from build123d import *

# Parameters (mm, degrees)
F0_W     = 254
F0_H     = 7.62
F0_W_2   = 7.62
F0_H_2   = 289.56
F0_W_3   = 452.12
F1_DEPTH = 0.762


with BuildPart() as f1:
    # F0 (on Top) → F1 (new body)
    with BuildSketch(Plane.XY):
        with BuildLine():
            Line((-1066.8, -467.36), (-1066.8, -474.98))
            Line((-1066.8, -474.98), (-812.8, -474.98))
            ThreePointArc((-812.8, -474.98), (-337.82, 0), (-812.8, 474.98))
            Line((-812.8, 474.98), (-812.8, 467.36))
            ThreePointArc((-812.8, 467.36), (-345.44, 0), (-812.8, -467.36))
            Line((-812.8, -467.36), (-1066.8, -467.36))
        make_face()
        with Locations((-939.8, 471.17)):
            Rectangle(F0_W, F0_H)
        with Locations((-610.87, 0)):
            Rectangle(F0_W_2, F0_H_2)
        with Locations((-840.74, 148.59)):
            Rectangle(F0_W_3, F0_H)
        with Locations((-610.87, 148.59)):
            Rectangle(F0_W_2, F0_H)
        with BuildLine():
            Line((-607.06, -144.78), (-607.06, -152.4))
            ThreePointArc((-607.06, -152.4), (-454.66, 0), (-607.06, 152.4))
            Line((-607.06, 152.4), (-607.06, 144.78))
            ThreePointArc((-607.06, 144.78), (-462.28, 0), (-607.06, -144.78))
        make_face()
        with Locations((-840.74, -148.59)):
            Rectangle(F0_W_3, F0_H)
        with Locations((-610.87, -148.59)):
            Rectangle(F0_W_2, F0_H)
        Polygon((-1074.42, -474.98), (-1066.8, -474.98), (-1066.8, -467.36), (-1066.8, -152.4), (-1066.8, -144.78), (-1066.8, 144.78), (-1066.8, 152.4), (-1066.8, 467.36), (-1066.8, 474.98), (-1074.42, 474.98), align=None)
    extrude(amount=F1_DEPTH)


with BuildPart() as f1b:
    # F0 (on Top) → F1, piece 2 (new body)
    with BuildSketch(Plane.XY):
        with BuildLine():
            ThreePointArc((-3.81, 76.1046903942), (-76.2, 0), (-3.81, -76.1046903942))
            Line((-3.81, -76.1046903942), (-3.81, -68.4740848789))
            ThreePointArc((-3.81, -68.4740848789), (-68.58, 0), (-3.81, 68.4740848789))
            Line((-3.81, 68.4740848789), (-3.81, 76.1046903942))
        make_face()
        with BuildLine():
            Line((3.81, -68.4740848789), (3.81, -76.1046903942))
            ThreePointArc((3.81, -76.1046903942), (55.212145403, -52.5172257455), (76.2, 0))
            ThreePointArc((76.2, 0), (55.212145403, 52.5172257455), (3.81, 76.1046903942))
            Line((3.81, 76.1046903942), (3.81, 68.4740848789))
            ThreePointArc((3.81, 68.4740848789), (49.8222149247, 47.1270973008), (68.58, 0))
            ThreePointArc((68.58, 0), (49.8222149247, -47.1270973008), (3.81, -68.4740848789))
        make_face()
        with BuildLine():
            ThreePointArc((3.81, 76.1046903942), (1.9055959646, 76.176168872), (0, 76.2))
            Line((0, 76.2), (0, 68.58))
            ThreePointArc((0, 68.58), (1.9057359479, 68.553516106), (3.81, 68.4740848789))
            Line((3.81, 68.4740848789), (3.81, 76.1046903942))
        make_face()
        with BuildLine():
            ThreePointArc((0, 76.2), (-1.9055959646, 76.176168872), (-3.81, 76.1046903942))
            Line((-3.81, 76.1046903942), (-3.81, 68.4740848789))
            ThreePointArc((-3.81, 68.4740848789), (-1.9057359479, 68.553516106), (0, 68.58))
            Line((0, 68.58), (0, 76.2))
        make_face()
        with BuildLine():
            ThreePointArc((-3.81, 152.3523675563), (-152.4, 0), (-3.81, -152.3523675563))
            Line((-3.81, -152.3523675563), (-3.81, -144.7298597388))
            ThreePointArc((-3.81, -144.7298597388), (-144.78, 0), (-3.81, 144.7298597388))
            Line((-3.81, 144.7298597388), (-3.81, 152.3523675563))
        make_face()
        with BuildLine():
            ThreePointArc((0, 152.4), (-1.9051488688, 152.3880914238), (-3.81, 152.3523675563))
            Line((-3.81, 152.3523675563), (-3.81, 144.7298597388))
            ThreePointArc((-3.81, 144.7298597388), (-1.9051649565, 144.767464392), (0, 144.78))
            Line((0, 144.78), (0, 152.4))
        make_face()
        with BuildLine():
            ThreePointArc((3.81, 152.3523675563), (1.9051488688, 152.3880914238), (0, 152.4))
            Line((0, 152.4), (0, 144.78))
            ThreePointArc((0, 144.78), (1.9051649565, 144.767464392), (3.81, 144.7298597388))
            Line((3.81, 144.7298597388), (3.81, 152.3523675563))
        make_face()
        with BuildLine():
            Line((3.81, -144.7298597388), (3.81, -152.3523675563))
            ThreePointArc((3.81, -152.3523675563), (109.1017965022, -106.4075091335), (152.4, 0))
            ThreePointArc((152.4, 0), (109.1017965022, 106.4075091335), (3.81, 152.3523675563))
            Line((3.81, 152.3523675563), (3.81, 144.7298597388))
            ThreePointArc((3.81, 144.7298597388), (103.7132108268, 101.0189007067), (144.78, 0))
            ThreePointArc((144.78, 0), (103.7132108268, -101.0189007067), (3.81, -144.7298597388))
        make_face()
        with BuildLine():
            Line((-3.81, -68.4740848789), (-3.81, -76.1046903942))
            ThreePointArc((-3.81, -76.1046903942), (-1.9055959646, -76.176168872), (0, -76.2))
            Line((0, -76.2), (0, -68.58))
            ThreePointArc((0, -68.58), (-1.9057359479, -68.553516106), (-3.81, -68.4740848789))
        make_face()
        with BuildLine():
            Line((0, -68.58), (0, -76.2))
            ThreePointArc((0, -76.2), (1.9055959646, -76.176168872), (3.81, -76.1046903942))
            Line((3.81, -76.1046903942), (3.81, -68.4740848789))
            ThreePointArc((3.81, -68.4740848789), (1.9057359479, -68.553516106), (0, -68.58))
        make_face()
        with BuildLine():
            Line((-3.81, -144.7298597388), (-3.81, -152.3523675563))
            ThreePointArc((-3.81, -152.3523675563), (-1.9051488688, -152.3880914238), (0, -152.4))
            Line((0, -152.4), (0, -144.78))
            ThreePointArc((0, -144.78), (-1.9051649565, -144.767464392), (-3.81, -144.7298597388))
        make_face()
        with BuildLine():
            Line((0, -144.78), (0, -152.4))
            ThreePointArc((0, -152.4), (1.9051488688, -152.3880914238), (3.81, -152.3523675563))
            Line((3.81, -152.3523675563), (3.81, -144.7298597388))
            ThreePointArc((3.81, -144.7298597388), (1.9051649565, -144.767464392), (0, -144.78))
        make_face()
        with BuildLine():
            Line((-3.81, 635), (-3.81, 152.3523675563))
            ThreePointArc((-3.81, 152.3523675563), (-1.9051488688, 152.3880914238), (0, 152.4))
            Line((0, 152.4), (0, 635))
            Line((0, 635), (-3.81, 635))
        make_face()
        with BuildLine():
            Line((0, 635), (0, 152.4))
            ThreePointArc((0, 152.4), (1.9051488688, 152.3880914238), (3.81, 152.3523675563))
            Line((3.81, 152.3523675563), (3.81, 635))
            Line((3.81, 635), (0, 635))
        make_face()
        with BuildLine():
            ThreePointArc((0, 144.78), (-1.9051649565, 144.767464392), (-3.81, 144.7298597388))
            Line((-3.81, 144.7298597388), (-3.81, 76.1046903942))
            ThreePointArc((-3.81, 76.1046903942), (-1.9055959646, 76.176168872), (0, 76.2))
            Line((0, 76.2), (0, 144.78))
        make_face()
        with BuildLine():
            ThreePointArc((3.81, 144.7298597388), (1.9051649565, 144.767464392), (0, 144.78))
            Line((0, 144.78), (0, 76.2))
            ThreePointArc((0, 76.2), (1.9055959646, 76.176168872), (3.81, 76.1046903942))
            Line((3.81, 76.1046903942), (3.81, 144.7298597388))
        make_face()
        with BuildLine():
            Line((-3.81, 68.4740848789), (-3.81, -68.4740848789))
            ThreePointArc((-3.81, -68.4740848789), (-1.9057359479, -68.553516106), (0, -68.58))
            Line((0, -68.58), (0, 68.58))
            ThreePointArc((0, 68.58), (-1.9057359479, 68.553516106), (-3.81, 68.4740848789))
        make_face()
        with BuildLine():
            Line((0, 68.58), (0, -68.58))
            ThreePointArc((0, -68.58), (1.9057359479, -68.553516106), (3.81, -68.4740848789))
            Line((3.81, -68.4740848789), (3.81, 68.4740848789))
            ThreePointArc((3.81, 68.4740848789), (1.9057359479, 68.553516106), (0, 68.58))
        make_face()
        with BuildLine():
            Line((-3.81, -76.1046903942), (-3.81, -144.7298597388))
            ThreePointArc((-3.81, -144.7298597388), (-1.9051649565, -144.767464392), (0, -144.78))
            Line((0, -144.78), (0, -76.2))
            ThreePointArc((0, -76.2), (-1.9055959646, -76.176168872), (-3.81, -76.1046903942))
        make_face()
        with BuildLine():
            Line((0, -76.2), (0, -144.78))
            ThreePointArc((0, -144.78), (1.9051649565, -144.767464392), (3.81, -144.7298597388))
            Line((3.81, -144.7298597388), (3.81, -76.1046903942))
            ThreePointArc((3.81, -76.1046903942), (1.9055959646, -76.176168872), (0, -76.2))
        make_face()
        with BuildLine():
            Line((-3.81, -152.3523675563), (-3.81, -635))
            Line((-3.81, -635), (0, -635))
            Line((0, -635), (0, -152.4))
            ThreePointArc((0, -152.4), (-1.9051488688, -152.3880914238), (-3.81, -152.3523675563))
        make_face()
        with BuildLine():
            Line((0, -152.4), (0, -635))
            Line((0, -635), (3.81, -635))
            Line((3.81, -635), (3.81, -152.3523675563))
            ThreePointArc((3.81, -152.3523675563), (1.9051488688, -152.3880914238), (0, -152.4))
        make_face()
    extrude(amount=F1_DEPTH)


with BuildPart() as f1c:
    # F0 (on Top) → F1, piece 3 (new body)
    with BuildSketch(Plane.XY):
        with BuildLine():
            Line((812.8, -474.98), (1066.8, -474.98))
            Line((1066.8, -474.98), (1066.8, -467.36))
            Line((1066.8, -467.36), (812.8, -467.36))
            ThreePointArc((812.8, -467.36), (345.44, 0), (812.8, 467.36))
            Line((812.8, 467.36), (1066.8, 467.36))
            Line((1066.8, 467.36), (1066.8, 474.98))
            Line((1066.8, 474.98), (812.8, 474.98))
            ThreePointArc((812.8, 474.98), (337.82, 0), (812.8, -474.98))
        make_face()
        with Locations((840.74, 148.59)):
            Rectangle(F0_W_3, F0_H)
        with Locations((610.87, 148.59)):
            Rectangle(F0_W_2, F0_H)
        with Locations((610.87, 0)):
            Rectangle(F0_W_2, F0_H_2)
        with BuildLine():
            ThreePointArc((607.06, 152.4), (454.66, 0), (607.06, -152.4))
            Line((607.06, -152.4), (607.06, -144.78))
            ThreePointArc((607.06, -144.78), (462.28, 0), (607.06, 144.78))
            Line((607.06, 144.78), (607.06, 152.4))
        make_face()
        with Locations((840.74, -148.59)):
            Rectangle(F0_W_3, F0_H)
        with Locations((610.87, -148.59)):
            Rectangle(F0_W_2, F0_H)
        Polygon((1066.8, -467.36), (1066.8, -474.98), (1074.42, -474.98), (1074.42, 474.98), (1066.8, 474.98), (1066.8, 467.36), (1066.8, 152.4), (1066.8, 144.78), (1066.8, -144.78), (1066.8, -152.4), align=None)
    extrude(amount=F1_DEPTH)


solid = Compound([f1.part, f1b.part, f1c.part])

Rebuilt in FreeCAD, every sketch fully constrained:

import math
import FreeCAD as App
import Part
import Sketcher

V = App.Vector
Q = App.Units.Quantity

doc = App.newDocument("Part")
params = doc.addObject("Spreadsheet::Sheet", "Params")
for row, (alias, value) in enumerate([
    ("sketch1_radius", "6 in"),
    ("sketch1_radius2", "18.7 in"),
    ("sketch1_radius3", "18.4 in"),
    ("sketch1_radius4", "5.7 in"),
    ("sketch1_width", "10 in"),
    ("pad1_length", "0.03 in"),
    ("sketch2_radius", "6 in"),
    ("sketch2_radius2", "3 in"),
    ("sketch2_radius3", "5.7 in"),
    ("sketch2_radius4", "2.7 in"),
    ("sketch2_width", "0.3 in"),
    ("pad2_length", "0.03 in"),
    ("sketch3_radius", "6 in"),
    ("sketch3_radius2", "18.7 in"),
    ("sketch3_radius3", "18.4 in"),
    ("sketch3_radius4", "5.7 in"),
    ("sketch3_width", "10 in"),
    ("pad3_length", "0.03 in"),
], start=1):
    params.set(f"A{row}", alias)
    params.set(f"B{row}", "=" + value)
    params.setAlias(f"B{row}", alias)

body = doc.addObject("PartDesign::Body", "Body")

# Sketch on XY plane
sketch1 = body.newObject("Sketcher::SketchObject", "Sketch")
sketch1.AttachmentSupport = (doc.getObject("XY_Plane"), [""])
sketch1.MapMode = "FlatFace"
sketch1.addGeometry(Part.ArcOfCircle(Part.Circle(V(-813, 0, 0), V(0, 0, 1), 475), math.radians(-90), math.radians(90)), False)
sketch1.addGeometry(Part.LineSegment(V(-813, 475, 0), V(-1074, 475, 0)), False)
sketch1.addGeometry(Part.LineSegment(V(-1074, 475, 0), V(-1074, -475, 0)), False)
sketch1.addGeometry(Part.LineSegment(V(-1074, -475, 0), V(-813, -475, 0)), False)
sketch1.addGeometry(Part.LineSegment(V(-1067, 467, 0), V(-813, 467, 0)), False)
sketch1.addGeometry(Part.ArcOfCircle(Part.Circle(V(-813, 0, 0), V(0, 0, 1), 467), math.radians(-90), math.radians(90)), False)
sketch1.addGeometry(Part.LineSegment(V(-813, -467, 0), V(-1067, -467, 0)), False)
sketch1.addGeometry(Part.LineSegment(V(-1067, -467, 0), V(-1067, -152, 0)), False)
sketch1.addGeometry(Part.LineSegment(V(-1067, -152, 0), V(-607, -152, 0)), False)
sketch1.addGeometry(Part.ArcOfCircle(Part.Circle(V(-607, 0, 0), V(0, 0, 1), 152), math.radians(-90), math.radians(90)), False)
sketch1.addGeometry(Part.LineSegment(V(-607, 152, 0), V(-1067, 152, 0)), False)
sketch1.addGeometry(Part.LineSegment(V(-1067, 152, 0), V(-1067, 467, 0)), False)
sketch1.addGeometry(Part.LineSegment(V(-1067, -145, 0), V(-1067, 145, 0)), False)
sketch1.addGeometry(Part.LineSegment(V(-1067, 145, 0), V(-615, 145, 0)), False)
sketch1.addGeometry(Part.LineSegment(V(-615, 145, 0), V(-615, -145, 0)), False)
sketch1.addGeometry(Part.LineSegment(V(-615, -145, 0), V(-1067, -145, 0)), False)
sketch1.addGeometry(Part.LineSegment(V(-607, -145, 0), V(-607, 145, 0)), False)
sketch1.addGeometry(Part.ArcOfCircle(Part.Circle(V(-607, 0, 0), V(0, 0, 1), 145), math.radians(-90), math.radians(90)), False)
sketch1.addConstraint(Sketcher.Constraint("Tangent", 0, 2, 1, 1))
sketch1.addConstraint(Sketcher.Constraint("Coincident", 1, 2, 2, 1))
sketch1.addConstraint(Sketcher.Constraint("Coincident", 2, 2, 3, 1))
sketch1.addConstraint(Sketcher.Constraint("Tangent", 3, 2, 0, 1))
sketch1.addConstraint(Sketcher.Constraint("Tangent", 4, 2, 5, 2))
sketch1.addConstraint(Sketcher.Constraint("Tangent", 5, 1, 6, 1))
sketch1.addConstraint(Sketcher.Constraint("Coincident", 6, 2, 7, 1))
sketch1.addConstraint(Sketcher.Constraint("Coincident", 7, 2, 8, 1))
sketch1.addConstraint(Sketcher.Constraint("Tangent", 8, 2, 9, 1))
sketch1.addConstraint(Sketcher.Constraint("Tangent", 9, 2, 10, 1))
sketch1.addConstraint(Sketcher.Constraint("Coincident", 10, 2, 11, 1))
sketch1.addConstraint(Sketcher.Constraint("Coincident", 11, 2, 4, 1))
sketch1.addConstraint(Sketcher.Constraint("Coincident", 12, 2, 13, 1))
sketch1.addConstraint(Sketcher.Constraint("Coincident", 13, 2, 14, 1))
sketch1.addConstraint(Sketcher.Constraint("Coincident", 14, 2, 15, 1))
sketch1.addConstraint(Sketcher.Constraint("Coincident", 15, 2, 12, 1))
sketch1.addConstraint(Sketcher.Constraint("Coincident", 16, 1, 17, 1))
sketch1.addConstraint(Sketcher.Constraint("Coincident", 17, 2, 16, 2))
sketch1.addConstraint(Sketcher.Constraint("Horizontal", 1))
sketch1.addConstraint(Sketcher.Constraint("Vertical", 2))
sketch1.addConstraint(Sketcher.Constraint("Horizontal", 3))
sketch1.addConstraint(Sketcher.Constraint("Horizontal", 4))
sketch1.addConstraint(Sketcher.Constraint("Horizontal", 6))
sketch1.addConstraint(Sketcher.Constraint("Vertical", 7))
sketch1.addConstraint(Sketcher.Constraint("Horizontal", 8))
sketch1.addConstraint(Sketcher.Constraint("Horizontal", 10))
sketch1.addConstraint(Sketcher.Constraint("Vertical", 11))
sketch1.addConstraint(Sketcher.Constraint("Vertical", 12))
sketch1.addConstraint(Sketcher.Constraint("Horizontal", 13))
sketch1.addConstraint(Sketcher.Constraint("Vertical", 14))
sketch1.addConstraint(Sketcher.Constraint("Horizontal", 15))
sketch1.addConstraint(Sketcher.Constraint("Vertical", 16))
sketch1.addConstraint(Sketcher.Constraint("Coincident", 5, 3, 0, 3))
sketch1.addConstraint(Sketcher.Constraint("Coincident", 17, 3, 9, 3))
sketch1.addConstraint(Sketcher.Constraint("Symmetric", 7, 2, 10, 2, -1))
sketch1.addConstraint(Sketcher.Constraint("PointOnObject", 0, 3, -1))
sketch1.addConstraint(Sketcher.Constraint("Horizontal", 15, 2, 16, 1))
sketch1.addConstraint(Sketcher.Constraint("Horizontal", 13, 2, 17, 2))
sketch1.addConstraint(Sketcher.Constraint("Vertical", 11, 2, 12, 2))
sketch1.addConstraint(Sketcher.Constraint("Vertical", 9, 2, 16, 1))
sketch1.addConstraint(Sketcher.Constraint("Radius", 9, Q("6 in")))
sketch1.addConstraint(Sketcher.Constraint("Radius", 0, Q("18.7 in")))
sketch1.addConstraint(Sketcher.Constraint("Radius", 5, Q("18.4 in")))
sketch1.addConstraint(Sketcher.Constraint("Radius", 17, Q("5.7 in")))
sketch1.addConstraint(Sketcher.Constraint("DistanceX", 4, 1, 4, 2, Q("10 in")))
sketch1.addConstraint(Sketcher.Constraint("DistanceX", 1, 2, 1, 1, Q("10.3 in")))
sketch1.addConstraint(Sketcher.Constraint("DistanceX", 8, 1, 8, 2, Q("18.1 in")))
sketch1.addConstraint(Sketcher.Constraint("DistanceX", 13, 1, 13, 2, Q("17.8 in")))
sketch1.addConstraint(Sketcher.Constraint("DistanceX", 0, 3, -1, 1, Q("32 in")))
sketch1.setExpression("Constraints[40]", "Params.sketch1_radius")
sketch1.setExpression("Constraints[41]", "Params.sketch1_radius2")
sketch1.setExpression("Constraints[42]", "Params.sketch1_radius3")
sketch1.setExpression("Constraints[43]", "Params.sketch1_radius4")
sketch1.setExpression("Constraints[44]", "Params.sketch1_width")
pad1 = body.newObject("PartDesign::Pad", "Pad")
pad1.Profile = sketch1
pad1.setExpression("Length", "Params.pad1_length")
body2 = doc.addObject("PartDesign::Body", "Body001")

# Sketch on XY plane
sketch2 = body2.newObject("Sketcher::SketchObject", "Sketch001")
sketch2.AttachmentSupport = (doc.getObject("XY_Plane001"), [""])
sketch2.MapMode = "FlatFace"
sketch2.addGeometry(Part.ArcOfCircle(Part.Circle(V(0, 0, 0), V(0, 0, 1), 152), math.radians(91), math.radians(269)), False)
sketch2.addGeometry(Part.LineSegment(V(-4, -152, 0), V(-4, -635, 0)), False)
sketch2.addGeometry(Part.LineSegment(V(-4, -635, 0), V(4, -635, 0)), False)
sketch2.addGeometry(Part.LineSegment(V(4, -635, 0), V(4, -152, 0)), False)
sketch2.addGeometry(Part.ArcOfCircle(Part.Circle(V(0, 0, 0), V(0, 0, 1), 152), math.radians(-89), math.radians(89)), False)
sketch2.addGeometry(Part.LineSegment(V(4, 152, 0), V(4, 635, 0)), False)
sketch2.addGeometry(Part.LineSegment(V(4, 635, 0), V(-4, 635, 0)), False)
sketch2.addGeometry(Part.LineSegment(V(-4, 635, 0), V(-4, 152, 0)), False)
sketch2.addGeometry(Part.ArcOfCircle(Part.Circle(V(0, 0, 0), V(0, 0, 1), 76), math.radians(93), math.radians(267)), False)
sketch2.addGeometry(Part.LineSegment(V(-4, -76, 0), V(-4, -145, 0)), False)
sketch2.addGeometry(Part.ArcOfCircle(Part.Circle(V(0, 0, 0), V(0, 0, 1), 145), math.radians(92), math.radians(268)), False)
sketch2.addGeometry(Part.LineSegment(V(-4, 145, 0), V(-4, 76, 0)), False)
sketch2.addGeometry(Part.ArcOfCircle(Part.Circle(V(0, 0, 0), V(0, 0, 1), 76), math.radians(-87), math.radians(0)), False)
sketch2.addGeometry(Part.ArcOfCircle(Part.Circle(V(0, 0, 0), V(0, 0, 1), 76), math.radians(0), math.radians(87)), False)
sketch2.addGeometry(Part.LineSegment(V(4, 76, 0), V(4, 145, 0)), False)
sketch2.addGeometry(Part.ArcOfCircle(Part.Circle(V(0, 0, 0), V(0, 0, 1), 145), math.radians(0), math.radians(88)), False)
sketch2.addGeometry(Part.ArcOfCircle(Part.Circle(V(0, 0, 0), V(0, 0, 1), 145), math.radians(-88), math.radians(0)), False)
sketch2.addGeometry(Part.LineSegment(V(4, -145, 0), V(4, -76, 0)), False)
sketch2.addGeometry(Part.ArcOfCircle(Part.Circle(V(0, 0, 0), V(0, 0, 1), 69), math.radians(93), math.radians(267)), False)
sketch2.addGeometry(Part.LineSegment(V(-4, 68, 0), V(-4, -68, 0)), False)
sketch2.addGeometry(Part.ArcOfCircle(Part.Circle(V(0, 0, 0), V(0, 0, 1), 69), math.radians(-87), math.radians(87)), False)
sketch2.addGeometry(Part.LineSegment(V(4, -68, 0), V(4, 68, 0)), False)
sketch2.addConstraint(Sketcher.Constraint("Coincident", 0, 2, 1, 1))
sketch2.addConstraint(Sketcher.Constraint("Coincident", 1, 2, 2, 1))
sketch2.addConstraint(Sketcher.Constraint("Coincident", 2, 2, 3, 1))
sketch2.addConstraint(Sketcher.Constraint("Coincident", 3, 2, 4, 1))
sketch2.addConstraint(Sketcher.Constraint("Coincident", 4, 2, 5, 1))
sketch2.addConstraint(Sketcher.Constraint("Coincident", 5, 2, 6, 1))
sketch2.addConstraint(Sketcher.Constraint("Coincident", 6, 2, 7, 1))
sketch2.addConstraint(Sketcher.Constraint("Coincident", 7, 2, 0, 1))
sketch2.addConstraint(Sketcher.Constraint("Coincident", 8, 2, 9, 1))
sketch2.addConstraint(Sketcher.Constraint("Coincident", 9, 2, 10, 2))
sketch2.addConstraint(Sketcher.Constraint("Coincident", 10, 1, 11, 1))
sketch2.addConstraint(Sketcher.Constraint("Coincident", 11, 2, 8, 1))
sketch2.addConstraint(Sketcher.Constraint("Tangent", 12, 2, 13, 1))
sketch2.addConstraint(Sketcher.Constraint("Coincident", 13, 2, 14, 1))
sketch2.addConstraint(Sketcher.Constraint("Coincident", 14, 2, 15, 2))
sketch2.addConstraint(Sketcher.Constraint("Tangent", 15, 1, 16, 2))
sketch2.addConstraint(Sketcher.Constraint("Coincident", 16, 1, 17, 1))
sketch2.addConstraint(Sketcher.Constraint("Coincident", 17, 2, 12, 1))
sketch2.addConstraint(Sketcher.Constraint("Coincident", 18, 1, 19, 1))
sketch2.addConstraint(Sketcher.Constraint("Coincident", 19, 2, 18, 2))
sketch2.addConstraint(Sketcher.Constraint("Coincident", 20, 1, 21, 1))
sketch2.addConstraint(Sketcher.Constraint("Coincident", 21, 2, 20, 2))
sketch2.addConstraint(Sketcher.Constraint("Vertical", 1))
sketch2.addConstraint(Sketcher.Constraint("Horizontal", 2))
sketch2.addConstraint(Sketcher.Constraint("Vertical", 3))
sketch2.addConstraint(Sketcher.Constraint("Vertical", 5))
sketch2.addConstraint(Sketcher.Constraint("Horizontal", 6))
sketch2.addConstraint(Sketcher.Constraint("Vertical", 7))
sketch2.addConstraint(Sketcher.Constraint("Vertical", 9))
sketch2.addConstraint(Sketcher.Constraint("Vertical", 11))
sketch2.addConstraint(Sketcher.Constraint("Vertical", 14))
sketch2.addConstraint(Sketcher.Constraint("Vertical", 17))
sketch2.addConstraint(Sketcher.Constraint("Vertical", 19))
sketch2.addConstraint(Sketcher.Constraint("Vertical", 21))
sketch2.addConstraint(Sketcher.Constraint("Coincident", 0, 3, -1, 1))
sketch2.addConstraint(Sketcher.Constraint("Coincident", 4, 3, -1, 1))
sketch2.addConstraint(Sketcher.Constraint("Coincident", 8, 3, -1, 1))
sketch2.addConstraint(Sketcher.Constraint("Coincident", 10, 3, -1, 1))
sketch2.addConstraint(Sketcher.Constraint("Coincident", 12, 3, -1, 1))
sketch2.addConstraint(Sketcher.Constraint("Coincident", 15, 3, -1, 1))
sketch2.addConstraint(Sketcher.Constraint("Coincident", 18, 3, -1, 1))
sketch2.addConstraint(Sketcher.Constraint("Coincident", 20, 3, -1, 1))
sketch2.addConstraint(Sketcher.Constraint("Equal", 0, 4))
sketch2.addConstraint(Sketcher.Constraint("Equal", 8, 12))
sketch2.addConstraint(Sketcher.Constraint("Equal", 12, 13))
sketch2.addConstraint(Sketcher.Constraint("Equal", 10, 15))
sketch2.addConstraint(Sketcher.Constraint("Equal", 15, 16))
sketch2.addConstraint(Sketcher.Constraint("Equal", 18, 20))
sketch2.addConstraint(Sketcher.Constraint("Symmetric", 1, 2, 5, 2, -1, 1))
sketch2.addConstraint(Sketcher.Constraint("PointOnObject", 12, 2, -1))
sketch2.addConstraint(Sketcher.Constraint("PointOnObject", 15, 1, -1))
sketch2.addConstraint(Sketcher.Constraint("Horizontal", 0, 2, 3, 2))
sketch2.addConstraint(Sketcher.Constraint("Horizontal", 4, 2, 7, 2))
sketch2.addConstraint(Sketcher.Constraint("Horizontal", 11, 2, 13, 2))
sketch2.addConstraint(Sketcher.Constraint("Horizontal", 9, 2, 16, 1))
sketch2.addConstraint(Sketcher.Constraint("Horizontal", 19, 2, 20, 1))
sketch2.addConstraint(Sketcher.Constraint("Vertical", 7, 2, 8, 2))
sketch2.addConstraint(Sketcher.Constraint("Vertical", 9, 2, 10, 1))
sketch2.addConstraint(Sketcher.Constraint("Vertical", 11, 2, 18, 1))
sketch2.addConstraint(Sketcher.Constraint("Radius", 0, Q("6 in")))
sketch2.addConstraint(Sketcher.Constraint("Radius", 8, Q("3 in")))
sketch2.addConstraint(Sketcher.Constraint("Radius", 10, Q("5.7 in")))
sketch2.addConstraint(Sketcher.Constraint("Radius", 18, Q("2.7 in")))
sketch2.addConstraint(Sketcher.Constraint("DistanceX", 2, 1, 2, 2, Q("0.3 in")))
sketch2.addConstraint(Sketcher.Constraint("DistanceY", 1, 2, -1, 1, Q("25 in")))
sketch2.setExpression("Constraints[59]", "Params.sketch2_radius")
sketch2.setExpression("Constraints[60]", "Params.sketch2_radius2")
sketch2.setExpression("Constraints[61]", "Params.sketch2_radius3")
sketch2.setExpression("Constraints[62]", "Params.sketch2_radius4")
sketch2.setExpression("Constraints[63]", "Params.sketch2_width")
pad2 = body2.newObject("PartDesign::Pad", "Pad001")
pad2.Profile = sketch2
pad2.setExpression("Length", "Params.pad2_length")
body3 = doc.addObject("PartDesign::Body", "Body002")

# Sketch on XY plane
sketch3 = body3.newObject("Sketcher::SketchObject", "Sketch002")
sketch3.AttachmentSupport = (doc.getObject("XY_Plane002"), [""])
sketch3.MapMode = "FlatFace"
sketch3.addGeometry(Part.LineSegment(V(813, -475, 0), V(1074, -475, 0)), False)
sketch3.addGeometry(Part.LineSegment(V(1074, -475, 0), V(1074, 475, 0)), False)
sketch3.addGeometry(Part.LineSegment(V(1074, 475, 0), V(813, 475, 0)), False)
sketch3.addGeometry(Part.ArcOfCircle(Part.Circle(V(813, 0, 0), V(0, 0, 1), 475), math.radians(90), math.radians(270)), False)
sketch3.addGeometry(Part.LineSegment(V(1067, -467, 0), V(813, -467, 0)), False)
sketch3.addGeometry(Part.ArcOfCircle(Part.Circle(V(813, 0, 0), V(0, 0, 1), 467), math.radians(90), math.radians(270)), False)
sketch3.addGeometry(Part.LineSegment(V(813, 467, 0), V(1067, 467, 0)), False)
sketch3.addGeometry(Part.LineSegment(V(1067, 467, 0), V(1067, 152, 0)), False)
sketch3.addGeometry(Part.LineSegment(V(1067, 152, 0), V(607, 152, 0)), False)
sketch3.addGeometry(Part.ArcOfCircle(Part.Circle(V(607, 0, 0), V(0, 0, 1), 152), math.radians(90), math.radians(270)), False)
sketch3.addGeometry(Part.LineSegment(V(607, -152, 0), V(1067, -152, 0)), False)
sketch3.addGeometry(Part.LineSegment(V(1067, -152, 0), V(1067, -467, 0)), False)
sketch3.addGeometry(Part.LineSegment(V(1067, 145, 0), V(1067, -145, 0)), False)
sketch3.addGeometry(Part.LineSegment(V(1067, -145, 0), V(615, -145, 0)), False)
sketch3.addGeometry(Part.LineSegment(V(615, -145, 0), V(615, 145, 0)), False)
sketch3.addGeometry(Part.LineSegment(V(615, 145, 0), V(1067, 145, 0)), False)
sketch3.addGeometry(Part.ArcOfCircle(Part.Circle(V(607, 0, 0), V(0, 0, 1), 145), math.radians(90), math.radians(270)), False)
sketch3.addGeometry(Part.LineSegment(V(607, 145, 0), V(607, -145, 0)), False)
sketch3.addConstraint(Sketcher.Constraint("Coincident", 0, 2, 1, 1))
sketch3.addConstraint(Sketcher.Constraint("Coincident", 1, 2, 2, 1))
sketch3.addConstraint(Sketcher.Constraint("Tangent", 2, 2, 3, 1))
sketch3.addConstraint(Sketcher.Constraint("Tangent", 3, 2, 0, 1))
sketch3.addConstraint(Sketcher.Constraint("Tangent", 4, 2, 5, 2))
sketch3.addConstraint(Sketcher.Constraint("Tangent", 5, 1, 6, 1))
sketch3.addConstraint(Sketcher.Constraint("Coincident", 6, 2, 7, 1))
sketch3.addConstraint(Sketcher.Constraint("Coincident", 7, 2, 8, 1))
sketch3.addConstraint(Sketcher.Constraint("Tangent", 8, 2, 9, 1))
sketch3.addConstraint(Sketcher.Constraint("Tangent", 9, 2, 10, 1))
sketch3.addConstraint(Sketcher.Constraint("Coincident", 10, 2, 11, 1))
sketch3.addConstraint(Sketcher.Constraint("Coincident", 11, 2, 4, 1))
sketch3.addConstraint(Sketcher.Constraint("Coincident", 12, 2, 13, 1))
sketch3.addConstraint(Sketcher.Constraint("Coincident", 13, 2, 14, 1))
sketch3.addConstraint(Sketcher.Constraint("Coincident", 14, 2, 15, 1))
sketch3.addConstraint(Sketcher.Constraint("Coincident", 15, 2, 12, 1))
sketch3.addConstraint(Sketcher.Constraint("Coincident", 16, 1, 17, 1))
sketch3.addConstraint(Sketcher.Constraint("Coincident", 17, 2, 16, 2))
sketch3.addConstraint(Sketcher.Constraint("Horizontal", 0))
sketch3.addConstraint(Sketcher.Constraint("Vertical", 1))
sketch3.addConstraint(Sketcher.Constraint("Horizontal", 2))
sketch3.addConstraint(Sketcher.Constraint("Horizontal", 4))
sketch3.addConstraint(Sketcher.Constraint("Horizontal", 6))
sketch3.addConstraint(Sketcher.Constraint("Vertical", 7))
sketch3.addConstraint(Sketcher.Constraint("Horizontal", 8))
sketch3.addConstraint(Sketcher.Constraint("Horizontal", 10))
sketch3.addConstraint(Sketcher.Constraint("Vertical", 11))
sketch3.addConstraint(Sketcher.Constraint("Vertical", 12))
sketch3.addConstraint(Sketcher.Constraint("Horizontal", 13))
sketch3.addConstraint(Sketcher.Constraint("Vertical", 14))
sketch3.addConstraint(Sketcher.Constraint("Horizontal", 15))
sketch3.addConstraint(Sketcher.Constraint("Vertical", 17))
sketch3.addConstraint(Sketcher.Constraint("Coincident", 5, 3, 3, 3))
sketch3.addConstraint(Sketcher.Constraint("Coincident", 16, 3, 9, 3))
sketch3.addConstraint(Sketcher.Constraint("Symmetric", 7, 2, 10, 2, -1))
sketch3.addConstraint(Sketcher.Constraint("PointOnObject", 3, 3, -1))
sketch3.addConstraint(Sketcher.Constraint("Horizontal", 15, 2, 16, 1))
sketch3.addConstraint(Sketcher.Constraint("Horizontal", 13, 2, 17, 2))
sketch3.addConstraint(Sketcher.Constraint("Vertical", 11, 2, 12, 2))
sketch3.addConstraint(Sketcher.Constraint("Vertical", 9, 2, 16, 1))
sketch3.addConstraint(Sketcher.Constraint("Radius", 9, Q("6 in")))
sketch3.addConstraint(Sketcher.Constraint("Radius", 3, Q("18.7 in")))
sketch3.addConstraint(Sketcher.Constraint("Radius", 5, Q("18.4 in")))
sketch3.addConstraint(Sketcher.Constraint("Radius", 16, Q("5.7 in")))
sketch3.addConstraint(Sketcher.Constraint("DistanceX", 4, 2, 4, 1, Q("10 in")))
sketch3.addConstraint(Sketcher.Constraint("DistanceX", 0, 1, 0, 2, Q("10.3 in")))
sketch3.addConstraint(Sketcher.Constraint("DistanceX", 8, 2, 8, 1, Q("18.1 in")))
sketch3.addConstraint(Sketcher.Constraint("DistanceX", 13, 2, 13, 1, Q("17.8 in")))
sketch3.addConstraint(Sketcher.Constraint("DistanceX", -1, 1, 3, 3, Q("32 in")))
sketch3.setExpression("Constraints[40]", "Params.sketch3_radius")
sketch3.setExpression("Constraints[41]", "Params.sketch3_radius2")
sketch3.setExpression("Constraints[42]", "Params.sketch3_radius3")
sketch3.setExpression("Constraints[43]", "Params.sketch3_radius4")
sketch3.setExpression("Constraints[44]", "Params.sketch3_width")
pad3 = body3.newObject("PartDesign::Pad", "Pad002")
pad3.Profile = sketch3
pad3.setExpression("Length", "Params.pad3_length")

doc.recompute()
